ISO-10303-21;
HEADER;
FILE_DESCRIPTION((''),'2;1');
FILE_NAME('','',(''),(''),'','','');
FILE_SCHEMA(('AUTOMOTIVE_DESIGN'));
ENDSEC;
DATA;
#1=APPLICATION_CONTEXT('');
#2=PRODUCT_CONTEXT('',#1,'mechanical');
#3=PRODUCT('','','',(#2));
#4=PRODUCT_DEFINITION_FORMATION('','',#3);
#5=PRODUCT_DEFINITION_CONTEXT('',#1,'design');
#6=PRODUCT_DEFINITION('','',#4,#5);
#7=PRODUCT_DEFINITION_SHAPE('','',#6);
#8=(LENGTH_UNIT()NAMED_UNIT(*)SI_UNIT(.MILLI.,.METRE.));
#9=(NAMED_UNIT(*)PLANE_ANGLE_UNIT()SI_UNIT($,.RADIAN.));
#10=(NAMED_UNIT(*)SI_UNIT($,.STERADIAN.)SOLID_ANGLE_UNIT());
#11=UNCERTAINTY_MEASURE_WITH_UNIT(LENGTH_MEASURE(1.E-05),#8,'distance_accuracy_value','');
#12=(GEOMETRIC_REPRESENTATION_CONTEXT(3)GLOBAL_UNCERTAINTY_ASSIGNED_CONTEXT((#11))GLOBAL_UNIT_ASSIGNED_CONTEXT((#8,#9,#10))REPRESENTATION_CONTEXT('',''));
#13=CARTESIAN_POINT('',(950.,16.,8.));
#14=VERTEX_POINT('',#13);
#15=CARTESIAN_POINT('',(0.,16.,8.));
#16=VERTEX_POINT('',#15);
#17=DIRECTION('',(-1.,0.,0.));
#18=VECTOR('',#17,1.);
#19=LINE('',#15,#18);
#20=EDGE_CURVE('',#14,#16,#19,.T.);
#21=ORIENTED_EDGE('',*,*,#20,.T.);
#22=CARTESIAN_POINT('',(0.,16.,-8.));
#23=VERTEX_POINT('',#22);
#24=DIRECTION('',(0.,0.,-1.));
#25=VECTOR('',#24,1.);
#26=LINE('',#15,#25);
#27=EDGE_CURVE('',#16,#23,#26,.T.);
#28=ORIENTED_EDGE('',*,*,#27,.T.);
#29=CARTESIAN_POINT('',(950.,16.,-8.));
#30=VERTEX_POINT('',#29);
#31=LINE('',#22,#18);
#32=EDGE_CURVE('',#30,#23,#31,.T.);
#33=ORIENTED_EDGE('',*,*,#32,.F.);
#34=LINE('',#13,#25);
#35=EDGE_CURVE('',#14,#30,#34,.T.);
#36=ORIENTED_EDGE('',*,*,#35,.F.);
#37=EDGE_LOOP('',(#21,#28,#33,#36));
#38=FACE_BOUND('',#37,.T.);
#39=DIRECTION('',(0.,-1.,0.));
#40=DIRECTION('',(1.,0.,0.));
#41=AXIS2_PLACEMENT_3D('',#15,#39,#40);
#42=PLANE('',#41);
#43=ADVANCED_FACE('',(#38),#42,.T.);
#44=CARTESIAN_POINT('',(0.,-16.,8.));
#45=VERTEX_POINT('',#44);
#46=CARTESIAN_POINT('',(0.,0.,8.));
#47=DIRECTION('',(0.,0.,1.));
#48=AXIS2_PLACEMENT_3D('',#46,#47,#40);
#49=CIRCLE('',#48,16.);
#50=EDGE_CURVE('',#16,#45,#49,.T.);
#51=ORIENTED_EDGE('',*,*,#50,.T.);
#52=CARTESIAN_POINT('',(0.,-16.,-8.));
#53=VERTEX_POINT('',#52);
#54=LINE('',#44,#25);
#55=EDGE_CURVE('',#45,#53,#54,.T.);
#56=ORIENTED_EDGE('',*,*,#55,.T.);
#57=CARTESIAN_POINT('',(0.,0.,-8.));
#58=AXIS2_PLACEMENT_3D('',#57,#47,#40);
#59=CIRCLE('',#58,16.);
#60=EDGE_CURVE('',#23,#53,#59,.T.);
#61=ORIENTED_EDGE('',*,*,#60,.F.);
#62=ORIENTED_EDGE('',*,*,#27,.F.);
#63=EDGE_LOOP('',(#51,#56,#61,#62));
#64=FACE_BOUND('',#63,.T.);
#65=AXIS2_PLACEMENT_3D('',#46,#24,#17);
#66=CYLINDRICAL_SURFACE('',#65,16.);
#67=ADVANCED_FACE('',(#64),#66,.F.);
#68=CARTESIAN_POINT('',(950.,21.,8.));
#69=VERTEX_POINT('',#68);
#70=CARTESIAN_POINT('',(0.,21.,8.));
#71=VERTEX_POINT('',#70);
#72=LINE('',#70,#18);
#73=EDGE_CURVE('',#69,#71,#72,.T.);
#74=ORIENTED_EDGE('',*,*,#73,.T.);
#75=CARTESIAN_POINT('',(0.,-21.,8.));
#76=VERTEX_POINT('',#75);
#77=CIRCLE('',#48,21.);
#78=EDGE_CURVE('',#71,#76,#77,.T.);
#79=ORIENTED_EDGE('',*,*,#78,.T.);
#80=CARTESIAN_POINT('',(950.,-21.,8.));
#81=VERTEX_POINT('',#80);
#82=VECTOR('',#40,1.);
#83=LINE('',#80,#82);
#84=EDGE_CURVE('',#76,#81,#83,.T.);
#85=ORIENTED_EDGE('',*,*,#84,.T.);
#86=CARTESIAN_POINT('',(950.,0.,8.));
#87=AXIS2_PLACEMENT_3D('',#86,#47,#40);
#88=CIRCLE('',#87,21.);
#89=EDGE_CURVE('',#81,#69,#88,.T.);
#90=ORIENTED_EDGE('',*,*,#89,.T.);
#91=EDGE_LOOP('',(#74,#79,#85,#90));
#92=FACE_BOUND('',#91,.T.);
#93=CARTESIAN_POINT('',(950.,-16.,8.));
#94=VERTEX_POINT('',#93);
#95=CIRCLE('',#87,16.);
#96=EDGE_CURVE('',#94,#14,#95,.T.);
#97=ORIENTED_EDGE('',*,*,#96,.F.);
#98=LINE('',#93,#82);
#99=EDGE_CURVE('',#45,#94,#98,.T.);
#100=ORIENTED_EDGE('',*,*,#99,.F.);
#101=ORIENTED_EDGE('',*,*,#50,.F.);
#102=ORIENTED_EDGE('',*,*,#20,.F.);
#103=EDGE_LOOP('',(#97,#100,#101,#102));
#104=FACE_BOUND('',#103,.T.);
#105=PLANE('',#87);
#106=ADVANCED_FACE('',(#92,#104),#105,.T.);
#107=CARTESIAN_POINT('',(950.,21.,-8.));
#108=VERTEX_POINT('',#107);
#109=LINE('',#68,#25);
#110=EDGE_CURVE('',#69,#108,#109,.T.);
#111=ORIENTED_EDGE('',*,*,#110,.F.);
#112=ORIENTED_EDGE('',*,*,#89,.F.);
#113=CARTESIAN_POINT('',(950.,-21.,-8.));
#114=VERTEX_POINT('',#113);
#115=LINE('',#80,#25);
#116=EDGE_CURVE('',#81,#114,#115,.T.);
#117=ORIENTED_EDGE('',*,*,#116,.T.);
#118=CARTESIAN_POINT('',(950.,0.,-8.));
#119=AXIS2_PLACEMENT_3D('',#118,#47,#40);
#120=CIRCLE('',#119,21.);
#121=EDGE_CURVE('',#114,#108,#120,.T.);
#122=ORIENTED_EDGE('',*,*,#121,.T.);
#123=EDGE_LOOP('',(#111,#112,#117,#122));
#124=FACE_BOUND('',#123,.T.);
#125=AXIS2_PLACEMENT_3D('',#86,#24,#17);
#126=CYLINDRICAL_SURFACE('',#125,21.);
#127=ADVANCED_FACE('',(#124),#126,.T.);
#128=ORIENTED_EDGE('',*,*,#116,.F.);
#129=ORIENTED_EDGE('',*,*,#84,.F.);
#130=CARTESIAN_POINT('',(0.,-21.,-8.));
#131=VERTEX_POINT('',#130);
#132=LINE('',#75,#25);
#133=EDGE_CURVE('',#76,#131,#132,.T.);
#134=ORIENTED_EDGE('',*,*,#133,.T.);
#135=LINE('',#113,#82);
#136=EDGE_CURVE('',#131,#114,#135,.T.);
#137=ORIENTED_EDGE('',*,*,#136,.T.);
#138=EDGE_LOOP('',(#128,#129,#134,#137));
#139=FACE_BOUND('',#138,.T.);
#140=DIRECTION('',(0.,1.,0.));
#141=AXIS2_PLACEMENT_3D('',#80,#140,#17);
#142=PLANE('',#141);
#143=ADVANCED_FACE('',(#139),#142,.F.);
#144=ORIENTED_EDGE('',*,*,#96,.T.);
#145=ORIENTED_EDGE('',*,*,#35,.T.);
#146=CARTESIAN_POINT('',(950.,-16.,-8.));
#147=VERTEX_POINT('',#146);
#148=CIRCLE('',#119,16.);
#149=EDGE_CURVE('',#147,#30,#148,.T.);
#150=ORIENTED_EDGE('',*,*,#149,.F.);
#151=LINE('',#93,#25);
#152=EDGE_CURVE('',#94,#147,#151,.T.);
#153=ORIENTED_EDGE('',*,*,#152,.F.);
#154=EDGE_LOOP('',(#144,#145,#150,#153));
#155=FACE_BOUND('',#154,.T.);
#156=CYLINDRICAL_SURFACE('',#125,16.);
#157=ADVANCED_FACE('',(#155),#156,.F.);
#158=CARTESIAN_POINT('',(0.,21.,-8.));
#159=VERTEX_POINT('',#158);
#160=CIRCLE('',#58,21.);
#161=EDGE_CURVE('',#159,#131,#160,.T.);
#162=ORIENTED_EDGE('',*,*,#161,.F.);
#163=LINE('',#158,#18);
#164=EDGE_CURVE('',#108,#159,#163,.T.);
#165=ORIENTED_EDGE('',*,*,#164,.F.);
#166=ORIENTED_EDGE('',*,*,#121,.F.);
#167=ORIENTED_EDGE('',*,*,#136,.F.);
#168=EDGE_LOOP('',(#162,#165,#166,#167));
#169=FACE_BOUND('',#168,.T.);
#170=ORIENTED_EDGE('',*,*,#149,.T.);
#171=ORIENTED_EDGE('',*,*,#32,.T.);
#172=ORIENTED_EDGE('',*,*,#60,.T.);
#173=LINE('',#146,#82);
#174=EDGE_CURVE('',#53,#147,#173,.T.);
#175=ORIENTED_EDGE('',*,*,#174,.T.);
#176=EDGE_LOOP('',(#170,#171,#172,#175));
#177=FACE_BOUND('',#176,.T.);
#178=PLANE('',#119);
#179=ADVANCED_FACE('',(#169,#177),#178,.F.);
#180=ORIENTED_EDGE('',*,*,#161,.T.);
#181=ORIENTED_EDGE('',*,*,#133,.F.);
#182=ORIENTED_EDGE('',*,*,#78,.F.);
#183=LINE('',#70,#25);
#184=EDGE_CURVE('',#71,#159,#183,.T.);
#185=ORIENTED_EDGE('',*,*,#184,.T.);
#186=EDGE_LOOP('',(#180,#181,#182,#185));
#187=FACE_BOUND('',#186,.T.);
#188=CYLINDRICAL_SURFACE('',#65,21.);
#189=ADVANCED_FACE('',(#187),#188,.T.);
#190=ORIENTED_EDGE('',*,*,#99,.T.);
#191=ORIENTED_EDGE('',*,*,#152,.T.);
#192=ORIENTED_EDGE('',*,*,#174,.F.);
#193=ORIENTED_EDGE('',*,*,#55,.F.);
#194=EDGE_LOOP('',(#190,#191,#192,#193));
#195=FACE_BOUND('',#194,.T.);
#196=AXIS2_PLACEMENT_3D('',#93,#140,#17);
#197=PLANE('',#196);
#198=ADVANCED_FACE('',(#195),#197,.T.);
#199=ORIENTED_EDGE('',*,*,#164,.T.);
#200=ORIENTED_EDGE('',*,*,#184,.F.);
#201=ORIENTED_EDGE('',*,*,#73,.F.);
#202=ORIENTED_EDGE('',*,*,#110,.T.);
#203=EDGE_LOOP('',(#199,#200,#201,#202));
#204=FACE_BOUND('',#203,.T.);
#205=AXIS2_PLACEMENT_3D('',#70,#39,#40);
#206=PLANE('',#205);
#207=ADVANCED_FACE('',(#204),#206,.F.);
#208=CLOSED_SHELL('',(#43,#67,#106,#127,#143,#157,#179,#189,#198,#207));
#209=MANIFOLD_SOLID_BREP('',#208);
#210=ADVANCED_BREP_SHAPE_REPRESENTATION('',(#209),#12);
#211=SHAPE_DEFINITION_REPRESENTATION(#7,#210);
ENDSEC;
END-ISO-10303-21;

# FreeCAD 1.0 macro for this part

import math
import FreeCAD as App
import Part
import Sketcher
Q = App.Units.Quantity

doc = App.newDocument("Part")
params = doc.addObject("Spreadsheet::Sheet", "Params")
for row, (alias, value) in enumerate([
    ("sketch1_radius", "21 mm"),
    ("sketch1_radius2", "16 mm"),
    ("sketch1_width", "950 mm"),
    ("pad1_length", "16 mm"),
], start=1):
    params.set(f"A{row}", alias)
    params.set(f"B{row}", "=" + value)
    params.setAlias(f"B{row}", alias)

body = doc.addObject("PartDesign::Body", "Body")

sketch1 = body.newObject("Sketcher::SketchObject", "Sketch")
sketch1.AttachmentSupport = (doc.getObject("XY_Plane"), [""])
sketch1.MapMode = "FlatFace"
sketch1.addGeometry([
    Part.LineSegment(App.Vector(950, 21, 0), App.Vector(0, 21, 0)),
    Part.ArcOfCircle(Part.Circle(App.Vector(0, 0, 0), App.Vector(0, 0, 1), 21), math.radians(90), math.radians(270)),
    Part.LineSegment(App.Vector(0, -21, 0), App.Vector(950, -21, 0)),
    Part.ArcOfCircle(Part.Circle(App.Vector(950, 0, 0), App.Vector(0, 0, 1), 21), math.radians(-90), math.radians(90)),
    Part.LineSegment(App.Vector(0, 16, 0), App.Vector(950, 16, 0)),
    Part.ArcOfCircle(Part.Circle(App.Vector(950, 0, 0), App.Vector(0, 0, 1), 16), math.radians(-90), math.radians(90)),
    Part.LineSegment(App.Vector(950, -16, 0), App.Vector(0, -16, 0)),
    Part.ArcOfCircle(Part.Circle(App.Vector(0, 0, 0), App.Vector(0, 0, 1), 16), math.radians(90), math.radians(270)),
], False)
sketch1.addConstraint([
    Sketcher.Constraint("Tangent", 0, 2, 1, 1),
    Sketcher.Constraint("Tangent", 1, 2, 2, 1),
    Sketcher.Constraint("Tangent", 2, 2, 3, 1),
    Sketcher.Constraint("Tangent", 3, 2, 0, 1),
    Sketcher.Constraint("Tangent", 4, 2, 5, 2),
    Sketcher.Constraint("Tangent", 5, 1, 6, 1),
    Sketcher.Constraint("Tangent", 6, 2, 7, 2),
    Sketcher.Constraint("Tangent", 7, 1, 4, 1),
    Sketcher.Constraint("Horizontal", 0),
    Sketcher.Constraint("Horizontal", 2),
    Sketcher.Constraint("Horizontal", 4),
    Sketcher.Constraint("Horizontal", 6),
    Sketcher.Constraint("Coincident", 1, 3, -1, 1),
    Sketcher.Constraint("Coincident", 7, 3, -1, 1),
    Sketcher.Constraint("Vertical", 5, 3, 2, 2),
    Sketcher.Constraint("Radius", 1, Q("21 mm")),
    Sketcher.Constraint("Radius", 5, Q("16 mm")),
    Sketcher.Constraint("DistanceX", 0, 2, 0, 1, Q("950 mm")),
])
sketch1.setExpression("Constraints[15]", "Params.sketch1_radius")
sketch1.setExpression("Constraints[16]", "Params.sketch1_radius2")
sketch1.setExpression("Constraints[17]", "Params.sketch1_width")
pad1 = body.newObject("PartDesign::Pad", "Pad")
pad1.Profile = sketch1
pad1.setExpression("Length", "Params.pad1_length")
pad1.Midplane = True

doc.recompute()
